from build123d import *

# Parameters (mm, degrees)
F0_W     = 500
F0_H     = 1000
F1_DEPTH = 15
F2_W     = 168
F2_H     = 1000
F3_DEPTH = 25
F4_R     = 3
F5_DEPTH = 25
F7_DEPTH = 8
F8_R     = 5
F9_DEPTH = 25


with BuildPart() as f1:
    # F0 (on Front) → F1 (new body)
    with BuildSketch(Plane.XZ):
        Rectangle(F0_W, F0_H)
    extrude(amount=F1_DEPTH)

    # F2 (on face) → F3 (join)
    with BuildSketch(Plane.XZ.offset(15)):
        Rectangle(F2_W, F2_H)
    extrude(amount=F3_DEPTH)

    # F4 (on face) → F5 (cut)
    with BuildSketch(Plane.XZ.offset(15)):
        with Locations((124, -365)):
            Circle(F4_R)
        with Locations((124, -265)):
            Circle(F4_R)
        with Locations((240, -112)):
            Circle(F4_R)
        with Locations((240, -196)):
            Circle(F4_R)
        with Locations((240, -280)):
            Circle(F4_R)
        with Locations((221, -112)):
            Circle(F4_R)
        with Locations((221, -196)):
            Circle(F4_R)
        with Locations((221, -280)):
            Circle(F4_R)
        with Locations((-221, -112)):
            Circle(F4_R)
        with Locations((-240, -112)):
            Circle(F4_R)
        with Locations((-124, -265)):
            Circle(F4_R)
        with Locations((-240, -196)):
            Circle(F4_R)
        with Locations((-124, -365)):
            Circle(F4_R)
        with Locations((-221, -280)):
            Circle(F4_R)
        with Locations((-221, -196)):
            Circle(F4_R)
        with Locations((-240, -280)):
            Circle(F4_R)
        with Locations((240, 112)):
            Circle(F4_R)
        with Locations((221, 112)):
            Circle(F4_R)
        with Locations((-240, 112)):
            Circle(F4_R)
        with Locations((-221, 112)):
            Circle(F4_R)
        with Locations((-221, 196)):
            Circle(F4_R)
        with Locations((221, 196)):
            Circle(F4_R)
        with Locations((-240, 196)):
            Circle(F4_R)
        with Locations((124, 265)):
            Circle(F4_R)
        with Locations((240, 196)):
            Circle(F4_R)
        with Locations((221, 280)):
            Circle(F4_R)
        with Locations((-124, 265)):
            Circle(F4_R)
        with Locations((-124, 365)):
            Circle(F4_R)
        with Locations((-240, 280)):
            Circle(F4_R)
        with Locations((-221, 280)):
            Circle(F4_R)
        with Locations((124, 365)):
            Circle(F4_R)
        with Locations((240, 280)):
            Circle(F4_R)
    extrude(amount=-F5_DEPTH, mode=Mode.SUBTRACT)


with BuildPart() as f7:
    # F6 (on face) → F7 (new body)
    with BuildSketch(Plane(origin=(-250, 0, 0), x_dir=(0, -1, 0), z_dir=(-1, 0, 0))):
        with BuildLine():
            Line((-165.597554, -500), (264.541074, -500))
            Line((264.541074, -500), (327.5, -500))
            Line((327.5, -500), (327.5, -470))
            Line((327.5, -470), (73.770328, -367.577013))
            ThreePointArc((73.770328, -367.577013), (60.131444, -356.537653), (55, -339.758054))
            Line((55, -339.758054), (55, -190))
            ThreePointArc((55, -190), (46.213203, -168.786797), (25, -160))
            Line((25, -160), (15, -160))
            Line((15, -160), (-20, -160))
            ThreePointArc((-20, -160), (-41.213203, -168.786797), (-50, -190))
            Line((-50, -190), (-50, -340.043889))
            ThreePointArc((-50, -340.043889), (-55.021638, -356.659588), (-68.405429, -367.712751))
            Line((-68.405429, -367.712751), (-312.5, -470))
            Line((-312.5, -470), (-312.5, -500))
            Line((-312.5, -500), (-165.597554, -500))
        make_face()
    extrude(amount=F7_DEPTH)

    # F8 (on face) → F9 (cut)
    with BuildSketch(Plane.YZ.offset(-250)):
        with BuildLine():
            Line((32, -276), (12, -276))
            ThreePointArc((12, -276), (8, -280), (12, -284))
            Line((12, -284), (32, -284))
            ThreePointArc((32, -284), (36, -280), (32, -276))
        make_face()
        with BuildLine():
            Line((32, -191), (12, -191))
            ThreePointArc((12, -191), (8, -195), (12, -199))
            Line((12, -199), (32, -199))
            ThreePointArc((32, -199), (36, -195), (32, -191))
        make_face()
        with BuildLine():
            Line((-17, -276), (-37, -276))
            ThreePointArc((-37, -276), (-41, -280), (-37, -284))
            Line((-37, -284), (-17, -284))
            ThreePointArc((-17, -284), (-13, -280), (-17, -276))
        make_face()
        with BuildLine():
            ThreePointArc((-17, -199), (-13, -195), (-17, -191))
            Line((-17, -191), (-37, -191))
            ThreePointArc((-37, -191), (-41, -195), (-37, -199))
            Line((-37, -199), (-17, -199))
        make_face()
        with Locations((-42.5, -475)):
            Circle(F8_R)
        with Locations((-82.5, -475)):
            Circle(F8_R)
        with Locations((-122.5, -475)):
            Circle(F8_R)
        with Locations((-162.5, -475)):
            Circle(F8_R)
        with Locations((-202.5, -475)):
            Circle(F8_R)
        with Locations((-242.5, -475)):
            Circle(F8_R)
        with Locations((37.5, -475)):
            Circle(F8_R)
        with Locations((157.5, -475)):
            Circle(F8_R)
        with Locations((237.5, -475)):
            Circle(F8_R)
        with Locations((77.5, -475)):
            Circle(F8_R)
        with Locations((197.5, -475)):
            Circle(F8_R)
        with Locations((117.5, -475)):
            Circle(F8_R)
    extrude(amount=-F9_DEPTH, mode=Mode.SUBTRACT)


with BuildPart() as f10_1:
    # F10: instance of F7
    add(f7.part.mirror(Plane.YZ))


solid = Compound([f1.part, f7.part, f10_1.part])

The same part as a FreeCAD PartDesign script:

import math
import FreeCAD as App
import Part
import Sketcher

V = App.Vector

doc = App.newDocument("Part")
body = doc.addObject("PartDesign::Body", "Body")

sketch1 = body.newObject("Sketcher::SketchObject", "Sketch")
sketch1.AttachmentSupport = (doc.getObject("XZ_Plane"), [""])
sketch1.MapMode = "FlatFace"
sketch1.addGeometry([
    Part.LineSegment(V(-250, 500, 0), V(-250, -500, 0)),
    Part.LineSegment(V(-250, -500, 0), V(250, -500, 0)),
    Part.LineSegment(V(250, -500, 0), V(250, 500, 0)),
    Part.LineSegment(V(250, 500, 0), V(-250, 500, 0)),
], False)
sketch1.addConstraint([
    Sketcher.Constraint("Coincident", 0, 2, 1, 1),
    Sketcher.Constraint("Coincident", 1, 2, 2, 1),
    Sketcher.Constraint("Coincident", 2, 2, 3, 1),
    Sketcher.Constraint("Coincident", 3, 2, 0, 1),
    Sketcher.Constraint("Vertical", 0),
    Sketcher.Constraint("Horizontal", 1),
    Sketcher.Constraint("Vertical", 2),
    Sketcher.Constraint("Horizontal", 3),
    Sketcher.Constraint("Symmetric", 0, 2, 2, 2, -1, 1),
    Sketcher.Constraint("DistanceX", 1, 1, 1, 2, 500.0),
    Sketcher.Constraint("DistanceY", 0, 2, 0, 1, 1000.0),
])
pad1 = body.newObject("PartDesign::Pad", "Pad")
pad1.Profile = sketch1
pad1.Length = 15

sketch2 = body.newObject("Sketcher::SketchObject", "Sketch001")
sketch2.AttachmentSupport = (doc.getObject("XZ_Plane"), [""])
sketch2.MapMode = "FlatFace"
sketch2.AttachmentOffset = App.Placement(V(0, 0, 15), App.Rotation())
sketch2.addGeometry([
    Part.LineSegment(V(-84, 500, 0), V(-84, -500, 0)),
    Part.LineSegment(V(-84, -500, 0), V(84, -500, 0)),
    Part.LineSegment(V(84, -500, 0), V(84, 500, 0)),
    Part.LineSegment(V(84, 500, 0), V(-84, 500, 0)),
], False)
sketch2.addConstraint([
    Sketcher.Constraint("Coincident", 0, 2, 1, 1),
    Sketcher.Constraint("Coincident", 1, 2, 2, 1),
    Sketcher.Constraint("Coincident", 2, 2, 3, 1),
    Sketcher.Constraint("Coincident", 3, 2, 0, 1),
    Sketcher.Constraint("Vertical", 0),
    Sketcher.Constraint("Horizontal", 1),
    Sketcher.Constraint("Vertical", 2),
    Sketcher.Constraint("Horizontal", 3),
    Sketcher.Constraint("Symmetric", 0, 2, 2, 2, -1, 1),
    Sketcher.Constraint("DistanceX", 1, 1, 1, 2, 168.0),
    Sketcher.Constraint("DistanceY", 0, 2, 0, 1, 1000.0),
])
pad2 = body.newObject("PartDesign::Pad", "Pad001")
pad2.Profile = sketch2
pad2.Length = 25

sketch3 = body.newObject("Sketcher::SketchObject", "Sketch002")
sketch3.AttachmentSupport = (doc.getObject("XZ_Plane"), [""])
sketch3.MapMode = "FlatFace"
sketch3.AttachmentOffset = App.Placement(V(0, 0, 15), App.Rotation())
sketch3.addGeometry([
    Part.Circle(V(124, -365, 0), V(0, 0, 1), 3),
    Part.Circle(V(124, -265, 0), V(0, 0, 1), 3),
    Part.Circle(V(240, -112, 0), V(0, 0, 1), 3),
    Part.Circle(V(240, -196, 0), V(0, 0, 1), 3),
    Part.Circle(V(240, -280, 0), V(0, 0, 1), 3),
    Part.Circle(V(221, -112, 0), V(0, 0, 1), 3),
    Part.Circle(V(221, -196, 0), V(0, 0, 1), 3),
    Part.Circle(V(221, -280, 0), V(0, 0, 1), 3),
    Part.Circle(V(-221, -112, 0), V(0, 0, 1), 3),
    Part.Circle(V(-240, -112, 0), V(0, 0, 1), 3),
    Part.Circle(V(-124, -265, 0), V(0, 0, 1), 3),
    Part.Circle(V(-240, -196, 0), V(0, 0, 1), 3),
    Part.Circle(V(-124, -365, 0), V(0, 0, 1), 3),
    Part.Circle(V(-221, -280, 0), V(0, 0, 1), 3),
    Part.Circle(V(-221, -196, 0), V(0, 0, 1), 3),
    Part.Circle(V(-240, -280, 0), V(0, 0, 1), 3),
    Part.Circle(V(240, 112, 0), V(0, 0, 1), 3),
    Part.Circle(V(221, 112, 0), V(0, 0, 1), 3),
    Part.Circle(V(-240, 112, 0), V(0, 0, 1), 3),
    Part.Circle(V(-221, 112, 0), V(0, 0, 1), 3),
    Part.Circle(V(-221, 196, 0), V(0, 0, 1), 3),
    Part.Circle(V(221, 196, 0), V(0, 0, 1), 3),
    Part.Circle(V(-240, 196, 0), V(0, 0, 1), 3),
    Part.Circle(V(124, 265, 0), V(0, 0, 1), 3),
    Part.Circle(V(240, 196, 0), V(0, 0, 1), 3),
    Part.Circle(V(221, 280, 0), V(0, 0, 1), 3),
    Part.Circle(V(-124, 265, 0), V(0, 0, 1), 3),
    Part.Circle(V(-124, 365, 0), V(0, 0, 1), 3),
    Part.Circle(V(-240, 280, 0), V(0, 0, 1), 3),
    Part.Circle(V(-221, 280, 0), V(0, 0, 1), 3),
    Part.Circle(V(124, 365, 0), V(0, 0, 1), 3),
    Part.Circle(V(240, 280, 0), V(0, 0, 1), 3),
], False)
sketch3.addConstraint([
    Sketcher.Constraint("Equal", 0, 1),
    Sketcher.Constraint("Equal", 1, 2),
    Sketcher.Constraint("Equal", 2, 3),
    Sketcher.Constraint("Equal", 3, 4),
    Sketcher.Constraint("Equal", 4, 5),
    Sketcher.Constraint("Equal", 5, 6),
    Sketcher.Constraint("Equal", 6, 7),
    Sketcher.Constraint("Equal", 7, 8),
    Sketcher.Constraint("Equal", 8, 9),
    Sketcher.Constraint("Equal", 9, 10),
    Sketcher.Constraint("Equal", 10, 11),
    Sketcher.Constraint("Equal", 11, 12),
    Sketcher.Constraint("Equal", 12, 13),
    Sketcher.Constraint("Equal", 13, 14),
    Sketcher.Constraint("Equal", 14, 15),
    Sketcher.Constraint("Equal", 15, 16),
    Sketcher.Constraint("Equal", 16, 17),
    Sketcher.Constraint("Equal", 17, 18),
    Sketcher.Constraint("Equal", 18, 19),
    Sketcher.Constraint("Equal", 19, 20),
    Sketcher.Constraint("Equal", 20, 21),
    Sketcher.Constraint("Equal", 21, 22),
    Sketcher.Constraint("Equal", 22, 23),
    Sketcher.Constraint("Equal", 23, 24),
    Sketcher.Constraint("Equal", 24, 25),
    Sketcher.Constraint("Equal", 25, 26),
    Sketcher.Constraint("Equal", 26, 27),
    Sketcher.Constraint("Equal", 27, 28),
    Sketcher.Constraint("Equal", 28, 29),
    Sketcher.Constraint("Equal", 29, 30),
    Sketcher.Constraint("Equal", 30, 31),
    Sketcher.Constraint("Symmetric", 9, 3, 16, 3, -1, 1),
    Sketcher.Constraint("Symmetric", 8, 3, 17, 3, -1, 1),
    Sketcher.Constraint("Symmetric", 2, 3, 18, 3, -1, 1),
    Sketcher.Constraint("Symmetric", 5, 3, 19, 3, -1, 1),
    Sketcher.Constraint("Symmetric", 6, 3, 20, 3, -1, 1),
    Sketcher.Constraint("Symmetric", 14, 3, 21, 3, -1, 1),
    Sketcher.Constraint("Symmetric", 3, 3, 22, 3, -1, 1),
    Sketcher.Constraint("Symmetric", 10, 3, 23, 3, -1, 1),
    Sketcher.Constraint("Symmetric", 11, 3, 24, 3, -1, 1),
    Sketcher.Constraint("Symmetric", 13, 3, 25, 3, -1, 1),
    Sketcher.Constraint("Symmetric", 1, 3, 26, 3, -1, 1),
    Sketcher.Constraint("Symmetric", 0, 3, 27, 3, -1, 1),
    Sketcher.Constraint("Symmetric", 4, 3, 28, 3, -1, 1),
    Sketcher.Constraint("Symmetric", 7, 3, 29, 3, -1, 1),
    Sketcher.Constraint("Symmetric", 12, 3, 30, 3, -1, 1),
    Sketcher.Constraint("Symmetric", 15, 3, 31, 3, -1, 1),
    Sketcher.Constraint("Symmetric", 5, 3, 8, 3, -2),
    Sketcher.Constraint("Symmetric", 2, 3, 9, 3, -2),
    Sketcher.Constraint("Symmetric", 1, 3, 10, 3, -2),
    Sketcher.Constraint("Symmetric", 3, 3, 11, 3, -2),
    Sketcher.Constraint("Symmetric", 0, 3, 12, 3, -2),
    Sketcher.Constraint("Symmetric", 7, 3, 13, 3, -2),
    Sketcher.Constraint("Symmetric", 6, 3, 14, 3, -2),
    Sketcher.Constraint("Symmetric", 4, 3, 15, 3, -2),
    Sketcher.Constraint("Horizontal", 2, 3, 5, 3),
    Sketcher.Constraint("Horizontal", 3, 3, 6, 3),
    Sketcher.Constraint("Horizontal", 4, 3, 7, 3),
    Sketcher.Constraint("Vertical", 0, 3, 1, 3),
    Sketcher.Constraint("Vertical", 2, 3, 3, 3),
    Sketcher.Constraint("Vertical", 3, 3, 4, 3),
    Sketcher.Constraint("Vertical", 5, 3, 6, 3),
    Sketcher.Constraint("Vertical", 6, 3, 7, 3),
    Sketcher.Constraint("Diameter", 0, 6.0),
    Sketcher.Constraint("DistanceX", -1, 1, 0, 3, 124.0),
    Sketcher.Constraint("DistanceY", 0, 3, -1, 1, 365.0),
    Sketcher.Constraint("DistanceY", 1, 3, -1, 1, 265.0),
    Sketcher.Constraint("DistanceX", -1, 1, 2, 3, 240.0),
    Sketcher.Constraint("DistanceY", 2, 3, -1, 1, 112.0),
    Sketcher.Constraint("DistanceY", 3, 3, -1, 1, 196.0),
    Sketcher.Constraint("DistanceY", 4, 3, -1, 1, 280.0),
    Sketcher.Constraint("DistanceX", -1, 1, 5, 3, 221.0),
])
pocket1 = body.newObject("PartDesign::Pocket", "Pocket")
pocket1.Profile = sketch3
pocket1.Length = 25
body2 = doc.addObject("PartDesign::Body", "Body001")

sketch4 = body2.newObject("Sketcher::SketchObject", "Sketch003")
sketch4.AttachmentSupport = (doc.getObject("YZ_Plane001"), [""])
sketch4.MapMode = "FlatFace"
sketch4.AttachmentOffset = App.Placement(V(0, 0, -250), App.Rotation())
sketch4.addGeometry([
    Part.LineSegment(V(-328, -500, 0), V(-328, -470, 0)),
    Part.LineSegment(V(-328, -470, 0), V(-74, -368, 0)),
    Part.ArcOfCircle(Part.Circle(V(-85, -340, 0), V(0, 0, 1), 30), math.radians(-68), math.radians(0)),
    Part.LineSegment(V(-55, -340, 0), V(-55, -190, 0)),
    Part.ArcOfCircle(Part.Circle(V(-25, -190, 0), V(0, 0, 1), 30), math.radians(90), math.radians(180)),
    Part.LineSegment(V(-25, -160, 0), V(20, -160, 0)),
    Part.ArcOfCircle(Part.Circle(V(20, -190, 0), V(0, 0, 1), 30), math.radians(0), math.radians(90)),
    Part.LineSegment(V(50, -190, 0), V(50, -340, 0)),
    Part.ArcOfCircle(Part.Circle(V(80, -340, 0), V(0, 0, 1), 30), math.radians(180), math.radians(247)),
    Part.LineSegment(V(68, -368, 0), V(312, -470, 0)),
    Part.LineSegment(V(312, -470, 0), V(312, -500, 0)),
    Part.LineSegment(V(312, -500, 0), V(-328, -500, 0)),
], False)
sketch4.addConstraint([
    Sketcher.Constraint("Coincident", 0, 2, 1, 1),
    Sketcher.Constraint("Tangent", 1, 2, 2, 1),
    Sketcher.Constraint("Tangent", 2, 2, 3, 1),
    Sketcher.Constraint("Tangent", 3, 2, 4, 2),
    Sketcher.Constraint("Tangent", 4, 1, 5, 1),
    Sketcher.Constraint("Tangent", 5, 2, 6, 2),
    Sketcher.Constraint("Tangent", 6, 1, 7, 1),
    Sketcher.Constraint("Tangent", 7, 2, 8, 1),
    Sketcher.Constraint("Tangent", 8, 2, 9, 1),
    Sketcher.Constraint("Coincident", 9, 2, 10, 1),
    Sketcher.Constraint("Coincident", 10, 2, 11, 1),
    Sketcher.Constraint("Coincident", 11, 2, 0, 1),
    Sketcher.Constraint("Vertical", 0),
    Sketcher.Constraint("Vertical", 3),
    Sketcher.Constraint("Horizontal", 5),
    Sketcher.Constraint("Vertical", 7),
    Sketcher.Constraint("Vertical", 10),
    Sketcher.Constraint("Horizontal", 11),
    Sketcher.Constraint("Equal", 4, 6),
    Sketcher.Constraint("Equal", 2, 8),
    Sketcher.Constraint("Horizontal", 0, 2, 9, 2),
    Sketcher.Constraint("Radius", 2, 29.999999),
    Sketcher.Constraint("Radius", 4, 30.000001),
    Sketcher.Constraint("DistanceX", 5, 1, 5, 2, 45.0),
    Sketcher.Constraint("DistanceX", 11, 2, 11, 1, 640.0),
    Sketcher.Constraint("DistanceY", 0, 1, 0, 2, 30.0),
    Sketcher.Constraint("DistanceX", 2, 3, -1, 1, 84.999999),
    Sketcher.Constraint("DistanceY", 4, 3, -1, 1, 190.000001),
    Sketcher.Constraint("DistanceY", 0, 2, -1, 1, 470.0),
    Sketcher.Constraint("DistanceX", 0, 2, -1, 1, 327.5),
    Sketcher.Constraint("DistanceY", 7, 2, 7, 1, 150.043889),
    Sketcher.Constraint("DistanceY", 3, 1, 3, 2, 149.758054),
])
pad3 = body2.newObject("PartDesign::Pad", "Pad002")
pad3.Profile = sketch4
pad3.Length = 8
pad3.Reversed = True

sketch5 = body2.newObject("Sketcher::SketchObject", "Sketch004")
sketch5.AttachmentSupport = (doc.getObject("YZ_Plane001"), [""])
sketch5.MapMode = "FlatFace"
sketch5.AttachmentOffset = App.Placement(V(0, 0, -250), App.Rotation())
sketch5.addGeometry([
    Part.LineSegment(V(32, -276, 0), V(12, -276, 0)),
    Part.ArcOfCircle(Part.Circle(V(12, -280, 0), V(0, 0, 1), 4), math.radians(90), math.radians(270)),
    Part.LineSegment(V(12, -284, 0), V(32, -284, 0)),
    Part.ArcOfCircle(Part.Circle(V(32, -280, 0), V(0, 0, 1), 4), math.radians(-90), math.radians(90)),
    Part.LineSegment(V(32, -191, 0), V(12, -191, 0)),
    Part.ArcOfCircle(Part.Circle(V(12, -195, 0), V(0, 0, 1), 4), math.radians(90), math.radians(270)),
    Part.LineSegment(V(12, -199, 0), V(32, -199, 0)),
    Part.ArcOfCircle(Part.Circle(V(32, -195, 0), V(0, 0, 1), 4), math.radians(-90), math.radians(90)),
    Part.LineSegment(V(-17, -276, 0), V(-37, -276, 0)),
    Part.ArcOfCircle(Part.Circle(V(-37, -280, 0), V(0, 0, 1), 4), math.radians(90), math.radians(270)),
    Part.LineSegment(V(-37, -284, 0), V(-17, -284, 0)),
    Part.ArcOfCircle(Part.Circle(V(-17, -280, 0), V(0, 0, 1), 4), math.radians(-90), math.radians(90)),
    Part.ArcOfCircle(Part.Circle(V(-17, -195, 0), V(0, 0, 1), 4), math.radians(-90), math.radians(90)),
    Part.LineSegment(V(-17, -191, 0), V(-37, -191, 0)),
    Part.ArcOfCircle(Part.Circle(V(-37, -195, 0), V(0, 0, 1), 4), math.radians(90), math.radians(270)),
    Part.LineSegment(V(-37, -199, 0), V(-17, -199, 0)),
    Part.Circle(V(-42.5, -475, 0), V(0, 0, 1), 5),
    Part.Circle(V(-82.5, -475, 0), V(0, 0, 1), 5),
    Part.Circle(V(-122.5, -475, 0), V(0, 0, 1), 5),
    Part.Circle(V(-162.5, -475, 0), V(0, 0, 1), 5),
    Part.Circle(V(-202.5, -475, 0), V(0, 0, 1), 5),
    Part.Circle(V(-242.5, -475, 0), V(0, 0, 1), 5),
    Part.Circle(V(37.5, -475, 0), V(0, 0, 1), 5),
    Part.Circle(V(157.5, -475, 0), V(0, 0, 1), 5),
    Part.Circle(V(237.5, -475, 0), V(0, 0, 1), 5),
    Part.Circle(V(77.5, -475, 0), V(0, 0, 1), 5),
    Part.Circle(V(197.5, -475, 0), V(0, 0, 1), 5),
    Part.Circle(V(117.5, -475, 0), V(0, 0, 1), 5),
], False)
sketch5.addConstraint([
    Sketcher.Constraint("Tangent", 0, 2, 1, 1),
    Sketcher.Constraint("Tangent", 1, 2, 2, 1),
    Sketcher.Constraint("Tangent", 2, 2, 3, 1),
    Sketcher.Constraint("Tangent", 3, 2, 0, 1),
    Sketcher.Constraint("Tangent", 4, 2, 5, 1),
    Sketcher.Constraint("Tangent", 5, 2, 6, 1),
    Sketcher.Constraint("Tangent", 6, 2, 7, 1),
    Sketcher.Constraint("Tangent", 7, 2, 4, 1),
    Sketcher.Constraint("Tangent", 8, 2, 9, 1),
    Sketcher.Constraint("Tangent", 9, 2, 10, 1),
    Sketcher.Constraint("Tangent", 10, 2, 11, 1),
    Sketcher.Constraint("Tangent", 11, 2, 8, 1),
    Sketcher.Constraint("Tangent", 12, 2, 13, 1),
    Sketcher.Constraint("Tangent", 13, 2, 14, 1),
    Sketcher.Constraint("Tangent", 14, 2, 15, 1),
    Sketcher.Constraint("Tangent", 15, 2, 12, 1),
    Sketcher.Constraint("Horizontal", 0),
    Sketcher.Constraint("Horizontal", 2),
    Sketcher.Constraint("Horizontal", 4),
    Sketcher.Constraint("Horizontal", 6),
    Sketcher.Constraint("Horizontal", 8),
    Sketcher.Constraint("Horizontal", 10),
    Sketcher.Constraint("Horizontal", 13),
    Sketcher.Constraint("Horizontal", 15),
    Sketcher.Constraint("Equal", 3, 5),
    Sketcher.Constraint("Equal", 7, 9),
    Sketcher.Constraint("Equal", 11, 12),
    Sketcher.Constraint("Equal", 16, 17),
    Sketcher.Constraint("Equal", 17, 18),
    Sketcher.Constraint("Equal", 18, 19),
    Sketcher.Constraint("Equal", 19, 20),
    Sketcher.Constraint("Equal", 20, 21),
    Sketcher.Constraint("Equal", 21, 22),
    Sketcher.Constraint("Equal", 22, 23),
    Sketcher.Constraint("Equal", 23, 24),
    Sketcher.Constraint("Equal", 24, 25),
    Sketcher.Constraint("Equal", 25, 26),
    Sketcher.Constraint("Equal", 26, 27),
    Sketcher.Constraint("Horizontal", 3, 3, 9, 3),
    Sketcher.Constraint("Horizontal", 7, 3, 12, 3),
    Sketcher.Constraint("Horizontal", 16, 3, 17, 3),
    Sketcher.Constraint("Horizontal", 17, 3, 18, 3),
    Sketcher.Constraint("Horizontal", 18, 3, 19, 3),
    Sketcher.Constraint("Horizontal", 19, 3, 20, 3),
    Sketcher.Constraint("Horizontal", 20, 3, 21, 3),
    Sketcher.Constraint("Horizontal", 21, 3, 22, 3),
    Sketcher.Constraint("Horizontal", 22, 3, 23, 3),
    Sketcher.Constraint("Horizontal", 23, 3, 24, 3),
    Sketcher.Constraint("Horizontal", 24, 3, 25, 3),
    Sketcher.Constraint("Horizontal", 25, 3, 26, 3),
    Sketcher.Constraint("Horizontal", 26, 3, 27, 3),
    Sketcher.Constraint("Vertical", 1, 3, 5, 3),
    Sketcher.Constraint("Vertical", 3, 3, 7, 3),
    Sketcher.Constraint("Vertical", 11, 3, 12, 3),
    Sketcher.Constraint("Vertical", 9, 3, 14, 3),
    Sketcher.Constraint("Equal", 6, 8),
    Sketcher.Constraint("Diameter", 16, 10.0),
    Sketcher.Constraint("Radius", 1, 4.0),
    Sketcher.Constraint("DistanceX", 0, 2, 0, 1, 20.0),
    Sketcher.Constraint("DistanceX", -1, 1, 1, 3, 12.0),
    Sketcher.Constraint("DistanceY", 1, 3, -1, 1, 280.0),
    Sketcher.Constraint("DistanceY", 5, 3, -1, 1, 195.0),
    Sketcher.Constraint("DistanceX", 9, 3, -1, 1, 37.0),
    Sketcher.Constraint("DistanceY", 16, 3, -1, 1, 475.0),
    Sketcher.Constraint("DistanceX", 17, 3, 16, 3, 40.0),
    Sketcher.Constraint("DistanceX", 18, 3, 17, 3, 40.0),
    Sketcher.Constraint("DistanceX", 19, 3, 18, 3, 40.0),
    Sketcher.Constraint("DistanceX", 20, 3, 19, 3, 40.0),
    Sketcher.Constraint("DistanceX", 21, 3, 20, 3, 40.0),
    Sketcher.Constraint("DistanceX", 16, 3, 22, 3, 80.0),
    Sketcher.Constraint("DistanceX", 22, 3, 23, 3, 120.0),
    Sketcher.Constraint("DistanceX", 23, 3, 24, 3, 80.0),
    Sketcher.Constraint("DistanceX", 22, 3, 25, 3, 40.0),
    Sketcher.Constraint("DistanceX", 23, 3, 26, 3, 40.0),
    Sketcher.Constraint("DistanceX", 27, 3, 23, 3, 40.0),
    Sketcher.Constraint("DistanceX", 16, 3, -1, 1, 42.5),
])
pocket2 = body2.newObject("PartDesign::Pocket", "Pocket001")
pocket2.Profile = sketch5
pocket2.Length = 25
body3 = doc.addObject("PartDesign::Body", "Body002")
doc.recompute()

mirroring = doc.addObject("Part::Mirroring", "Mirroring")
mirroring.Source = body2
mirroring.Base = V(0, 0, 0)
mirroring.Normal = V(1, 0, 0)
body3.BaseFeature = mirroring
doc.recompute()
mirroring.Visibility = False

doc.recompute()
